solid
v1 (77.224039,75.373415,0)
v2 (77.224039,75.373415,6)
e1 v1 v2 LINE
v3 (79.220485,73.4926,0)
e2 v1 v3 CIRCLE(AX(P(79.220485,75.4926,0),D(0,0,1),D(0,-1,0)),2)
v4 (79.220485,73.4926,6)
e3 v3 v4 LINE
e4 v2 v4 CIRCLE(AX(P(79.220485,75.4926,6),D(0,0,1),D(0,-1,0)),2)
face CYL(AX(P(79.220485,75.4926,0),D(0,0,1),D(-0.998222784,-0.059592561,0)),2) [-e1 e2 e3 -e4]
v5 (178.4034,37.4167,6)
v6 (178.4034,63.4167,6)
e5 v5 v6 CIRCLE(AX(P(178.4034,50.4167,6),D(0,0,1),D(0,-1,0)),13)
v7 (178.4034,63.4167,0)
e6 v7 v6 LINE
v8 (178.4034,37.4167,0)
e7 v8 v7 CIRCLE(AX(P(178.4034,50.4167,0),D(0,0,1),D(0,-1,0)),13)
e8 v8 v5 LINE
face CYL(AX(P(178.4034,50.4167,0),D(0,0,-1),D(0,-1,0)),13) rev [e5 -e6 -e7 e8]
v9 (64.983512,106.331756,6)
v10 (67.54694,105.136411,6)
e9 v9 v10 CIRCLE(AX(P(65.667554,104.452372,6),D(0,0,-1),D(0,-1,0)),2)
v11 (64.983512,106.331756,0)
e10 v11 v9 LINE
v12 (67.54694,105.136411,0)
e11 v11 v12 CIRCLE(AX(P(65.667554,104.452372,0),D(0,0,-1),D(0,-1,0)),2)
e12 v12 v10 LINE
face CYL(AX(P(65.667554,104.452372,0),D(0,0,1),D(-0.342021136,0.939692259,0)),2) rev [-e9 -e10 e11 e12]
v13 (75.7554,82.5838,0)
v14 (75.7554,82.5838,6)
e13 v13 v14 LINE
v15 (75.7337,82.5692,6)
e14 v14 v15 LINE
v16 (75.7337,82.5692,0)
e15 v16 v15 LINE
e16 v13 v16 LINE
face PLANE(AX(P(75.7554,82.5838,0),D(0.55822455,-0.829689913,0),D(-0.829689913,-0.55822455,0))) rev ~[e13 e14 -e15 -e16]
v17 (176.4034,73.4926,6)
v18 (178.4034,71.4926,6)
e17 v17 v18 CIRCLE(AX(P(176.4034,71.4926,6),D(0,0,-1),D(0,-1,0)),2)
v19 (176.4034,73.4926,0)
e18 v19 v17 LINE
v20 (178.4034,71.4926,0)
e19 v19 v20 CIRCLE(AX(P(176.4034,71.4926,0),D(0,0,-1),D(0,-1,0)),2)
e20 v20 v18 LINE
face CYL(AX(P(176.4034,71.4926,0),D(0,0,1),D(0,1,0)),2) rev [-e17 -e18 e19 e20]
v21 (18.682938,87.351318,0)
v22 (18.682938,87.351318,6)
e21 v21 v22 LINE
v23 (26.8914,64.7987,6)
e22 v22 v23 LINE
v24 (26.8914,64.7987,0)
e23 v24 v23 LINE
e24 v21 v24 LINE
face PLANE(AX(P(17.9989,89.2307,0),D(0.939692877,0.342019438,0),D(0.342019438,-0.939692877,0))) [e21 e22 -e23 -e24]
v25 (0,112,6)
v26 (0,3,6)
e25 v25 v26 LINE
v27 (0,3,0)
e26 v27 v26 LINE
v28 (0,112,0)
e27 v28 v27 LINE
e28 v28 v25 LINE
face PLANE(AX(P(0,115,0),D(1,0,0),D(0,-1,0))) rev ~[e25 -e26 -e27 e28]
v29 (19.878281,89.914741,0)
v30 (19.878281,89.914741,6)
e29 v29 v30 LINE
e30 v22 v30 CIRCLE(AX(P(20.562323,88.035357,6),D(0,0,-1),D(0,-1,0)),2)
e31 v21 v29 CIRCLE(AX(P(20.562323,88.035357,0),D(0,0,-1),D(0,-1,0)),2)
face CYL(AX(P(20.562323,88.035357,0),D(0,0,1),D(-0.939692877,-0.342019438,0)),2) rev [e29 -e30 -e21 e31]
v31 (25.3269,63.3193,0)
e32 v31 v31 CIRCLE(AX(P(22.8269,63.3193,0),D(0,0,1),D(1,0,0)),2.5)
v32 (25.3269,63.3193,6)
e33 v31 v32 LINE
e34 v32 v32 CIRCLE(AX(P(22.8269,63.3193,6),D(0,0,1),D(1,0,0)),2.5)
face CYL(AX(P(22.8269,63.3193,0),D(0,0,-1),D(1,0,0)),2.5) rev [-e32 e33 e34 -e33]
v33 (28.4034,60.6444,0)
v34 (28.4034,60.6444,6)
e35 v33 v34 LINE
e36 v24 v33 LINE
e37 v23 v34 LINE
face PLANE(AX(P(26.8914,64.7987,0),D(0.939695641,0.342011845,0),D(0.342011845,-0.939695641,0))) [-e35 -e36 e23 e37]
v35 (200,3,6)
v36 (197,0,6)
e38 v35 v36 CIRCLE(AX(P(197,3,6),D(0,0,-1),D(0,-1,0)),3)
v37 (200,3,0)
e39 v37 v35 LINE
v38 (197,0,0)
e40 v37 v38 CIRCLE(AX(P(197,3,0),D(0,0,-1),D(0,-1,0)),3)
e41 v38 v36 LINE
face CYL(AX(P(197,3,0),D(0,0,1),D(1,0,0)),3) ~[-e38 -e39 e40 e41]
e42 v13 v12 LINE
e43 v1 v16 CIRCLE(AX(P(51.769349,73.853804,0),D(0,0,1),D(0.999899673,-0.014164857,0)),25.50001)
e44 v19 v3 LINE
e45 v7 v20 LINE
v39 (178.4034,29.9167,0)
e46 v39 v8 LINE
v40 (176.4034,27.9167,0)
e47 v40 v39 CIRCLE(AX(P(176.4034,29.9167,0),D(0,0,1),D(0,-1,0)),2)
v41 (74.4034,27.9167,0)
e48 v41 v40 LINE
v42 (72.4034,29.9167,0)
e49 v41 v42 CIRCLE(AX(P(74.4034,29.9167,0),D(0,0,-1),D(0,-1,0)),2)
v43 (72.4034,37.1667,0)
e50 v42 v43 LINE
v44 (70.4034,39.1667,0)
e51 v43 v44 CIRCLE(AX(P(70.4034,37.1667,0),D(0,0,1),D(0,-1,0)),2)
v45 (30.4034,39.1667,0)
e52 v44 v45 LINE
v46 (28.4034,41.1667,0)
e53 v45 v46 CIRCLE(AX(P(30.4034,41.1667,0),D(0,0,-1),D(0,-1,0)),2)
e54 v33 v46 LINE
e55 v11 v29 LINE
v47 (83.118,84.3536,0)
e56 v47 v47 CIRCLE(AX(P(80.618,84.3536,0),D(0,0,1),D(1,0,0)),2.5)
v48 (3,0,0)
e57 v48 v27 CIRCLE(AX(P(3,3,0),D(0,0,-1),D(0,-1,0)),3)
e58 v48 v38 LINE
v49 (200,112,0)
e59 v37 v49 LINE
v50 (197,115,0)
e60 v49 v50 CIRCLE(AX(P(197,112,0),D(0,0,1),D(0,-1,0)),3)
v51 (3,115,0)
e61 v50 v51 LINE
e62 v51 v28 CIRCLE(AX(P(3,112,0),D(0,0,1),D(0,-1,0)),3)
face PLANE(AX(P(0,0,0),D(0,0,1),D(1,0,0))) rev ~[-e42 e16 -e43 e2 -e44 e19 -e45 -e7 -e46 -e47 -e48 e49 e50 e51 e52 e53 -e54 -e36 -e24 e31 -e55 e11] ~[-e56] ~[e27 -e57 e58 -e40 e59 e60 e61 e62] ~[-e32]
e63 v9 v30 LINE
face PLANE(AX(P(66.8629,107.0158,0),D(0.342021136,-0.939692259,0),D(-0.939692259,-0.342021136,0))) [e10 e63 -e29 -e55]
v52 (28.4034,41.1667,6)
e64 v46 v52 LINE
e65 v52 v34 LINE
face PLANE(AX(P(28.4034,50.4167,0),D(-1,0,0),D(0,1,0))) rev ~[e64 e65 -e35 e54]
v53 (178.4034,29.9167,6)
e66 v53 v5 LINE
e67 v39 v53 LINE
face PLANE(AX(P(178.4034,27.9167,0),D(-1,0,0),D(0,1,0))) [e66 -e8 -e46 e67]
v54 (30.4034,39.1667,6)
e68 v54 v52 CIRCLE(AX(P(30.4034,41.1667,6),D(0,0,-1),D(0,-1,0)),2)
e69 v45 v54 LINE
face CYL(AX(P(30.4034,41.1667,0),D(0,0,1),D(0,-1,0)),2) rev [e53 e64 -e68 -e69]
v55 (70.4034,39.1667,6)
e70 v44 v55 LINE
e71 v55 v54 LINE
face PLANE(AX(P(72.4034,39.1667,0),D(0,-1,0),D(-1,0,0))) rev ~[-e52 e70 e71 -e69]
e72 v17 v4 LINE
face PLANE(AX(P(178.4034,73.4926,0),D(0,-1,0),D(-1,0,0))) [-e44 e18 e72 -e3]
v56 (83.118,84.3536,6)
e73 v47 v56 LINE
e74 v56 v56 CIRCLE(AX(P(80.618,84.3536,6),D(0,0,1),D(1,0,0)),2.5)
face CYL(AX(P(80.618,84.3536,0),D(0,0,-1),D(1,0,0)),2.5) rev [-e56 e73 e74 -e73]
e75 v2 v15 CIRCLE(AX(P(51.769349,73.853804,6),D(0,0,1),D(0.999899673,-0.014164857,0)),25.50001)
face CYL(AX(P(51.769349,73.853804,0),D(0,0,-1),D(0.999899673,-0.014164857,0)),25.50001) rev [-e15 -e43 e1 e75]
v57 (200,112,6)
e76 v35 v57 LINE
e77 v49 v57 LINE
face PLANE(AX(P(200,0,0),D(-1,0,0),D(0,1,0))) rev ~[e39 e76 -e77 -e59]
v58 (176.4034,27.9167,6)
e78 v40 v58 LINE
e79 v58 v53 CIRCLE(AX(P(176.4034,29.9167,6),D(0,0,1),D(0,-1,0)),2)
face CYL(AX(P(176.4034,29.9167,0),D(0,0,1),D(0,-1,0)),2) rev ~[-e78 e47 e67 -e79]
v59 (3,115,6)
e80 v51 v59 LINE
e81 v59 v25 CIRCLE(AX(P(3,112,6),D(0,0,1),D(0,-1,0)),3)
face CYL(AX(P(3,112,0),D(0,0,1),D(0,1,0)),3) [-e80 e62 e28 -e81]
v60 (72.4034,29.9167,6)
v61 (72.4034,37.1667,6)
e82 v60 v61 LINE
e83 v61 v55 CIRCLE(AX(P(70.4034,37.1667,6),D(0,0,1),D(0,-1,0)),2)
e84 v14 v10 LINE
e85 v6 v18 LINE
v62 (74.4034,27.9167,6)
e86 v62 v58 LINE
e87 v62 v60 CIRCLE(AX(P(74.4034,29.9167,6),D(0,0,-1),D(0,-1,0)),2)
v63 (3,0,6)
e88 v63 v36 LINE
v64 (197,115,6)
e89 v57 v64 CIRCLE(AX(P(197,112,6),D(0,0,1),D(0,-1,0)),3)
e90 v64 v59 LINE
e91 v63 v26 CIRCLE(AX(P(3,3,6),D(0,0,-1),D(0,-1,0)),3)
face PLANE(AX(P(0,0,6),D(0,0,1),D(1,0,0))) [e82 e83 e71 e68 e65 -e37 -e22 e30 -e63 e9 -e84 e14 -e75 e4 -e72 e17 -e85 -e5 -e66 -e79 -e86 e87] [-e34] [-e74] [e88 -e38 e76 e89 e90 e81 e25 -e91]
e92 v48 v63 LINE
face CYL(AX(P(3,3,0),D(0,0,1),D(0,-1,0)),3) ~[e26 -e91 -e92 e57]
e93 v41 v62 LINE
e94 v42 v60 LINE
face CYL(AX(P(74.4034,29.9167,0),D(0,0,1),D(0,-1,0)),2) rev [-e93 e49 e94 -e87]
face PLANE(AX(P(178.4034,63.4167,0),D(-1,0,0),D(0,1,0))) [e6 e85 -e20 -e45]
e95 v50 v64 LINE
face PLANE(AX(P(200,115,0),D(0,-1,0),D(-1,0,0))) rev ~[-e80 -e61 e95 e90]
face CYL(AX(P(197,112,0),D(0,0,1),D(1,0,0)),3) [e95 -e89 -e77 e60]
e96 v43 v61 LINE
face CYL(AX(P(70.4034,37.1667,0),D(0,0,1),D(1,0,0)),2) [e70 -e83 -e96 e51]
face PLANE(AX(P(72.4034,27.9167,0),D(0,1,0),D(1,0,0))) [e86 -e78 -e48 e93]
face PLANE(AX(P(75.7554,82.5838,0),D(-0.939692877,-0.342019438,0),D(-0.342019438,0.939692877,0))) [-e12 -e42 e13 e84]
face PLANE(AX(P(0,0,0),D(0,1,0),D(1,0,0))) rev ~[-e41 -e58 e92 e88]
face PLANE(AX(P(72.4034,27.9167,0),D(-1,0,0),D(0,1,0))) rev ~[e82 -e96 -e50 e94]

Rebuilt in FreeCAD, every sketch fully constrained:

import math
import FreeCAD as App
import Part
import Sketcher


def edges_at(feature, points):
    """Names of the edges that pass closest to the given points."""
    edges = feature.Shape.Edges
    near = lambda p: min(range(len(edges)), key=lambda i: edges[i].distToShape(Part.Vertex(*p))[0])
    return sorted({f"Edge{near(p) + 1}" for p in points})


def add_polygon(sketch, points):
    """Adds a closed chain of lines whose ends are joined by coincident constraints."""
    first, n = sketch.GeometryCount, len(points)
    for a, b in zip(points, points[1:] + points[:1]):
        sketch.addGeometry(Part.LineSegment(App.Vector(*a, 0), App.Vector(*b, 0)), False)
    for i in range(n):
        sketch.addConstraint(Sketcher.Constraint("Coincident", first + i, 2, first + (i + 1) % n, 1))

doc = App.newDocument("Part")
body = doc.addObject("PartDesign::Body", "Body")

sketch1 = body.newObject("Sketcher::SketchObject", "Sketch")
sketch1.AttachmentSupport = (doc.getObject("XY_Plane"), [""])
sketch1.MapMode = "FlatFace"
add_polygon(sketch1, [(0, 115), (0, 0), (200, 0), (200, 115)])
sketch1.addGeometry(Part.Circle(App.Vector(22.8269, 63.3193, 0), App.Vector(0, 0, 1), 2.5), False)
sketch1.addGeometry(Part.Circle(App.Vector(80.618, 84.3536, 0), App.Vector(0, 0, 1), 2.5), False)
sketch1.addGeometry(Part.LineSegment(App.Vector(178.4034, 27.9167, 0), App.Vector(72.4034, 27.9167, 0)), False)
sketch1.addGeometry(Part.LineSegment(App.Vector(72.4034, 27.9167, 0), App.Vector(72.4034, 39.1667, 0)), False)
sketch1.addGeometry(Part.LineSegment(App.Vector(72.4034, 39.1667, 0), App.Vector(28.4034, 39.1667, 0)), False)
sketch1.addGeometry(Part.LineSegment(App.Vector(28.4034, 39.1667, 0), App.Vector(28.4034, 60.6444, 0)), False)
sketch1.addGeometry(Part.LineSegment(App.Vector(28.4034, 60.6444, 0), App.Vector(26.8914, 64.7987, 0)), False)
sketch1.addGeometry(Part.LineSegment(App.Vector(26.8914, 64.7987, 0), App.Vector(17.9989, 89.2307, 0)), False)
sketch1.addGeometry(Part.LineSegment(App.Vector(17.9989, 89.2307, 0), App.Vector(66.8629, 107.0158, 0)), False)
sketch1.addGeometry(Part.LineSegment(App.Vector(66.8629, 107.0158, 0), App.Vector(75.7554, 82.5838, 0)), False)
sketch1.addGeometry(Part.LineSegment(App.Vector(75.7554, 82.5838, 0), App.Vector(75.7337, 82.5692, 0)), False)
sketch1.addGeometry(Part.ArcOfCircle(Part.Circle(App.Vector(51.76601, 73.85324, 0), App.Vector(0, 0, 1), 25.50334), math.radians(-0.81024), math.radians(19.984028)), False)
sketch1.addGeometry(Part.LineSegment(App.Vector(77.2668, 73.4926, 0), App.Vector(178.4034, 73.4926, 0)), False)
sketch1.addGeometry(Part.LineSegment(App.Vector(178.4034, 73.4926, 0), App.Vector(178.4034, 63.4167, 0)), False)
sketch1.addGeometry(Part.ArcOfCircle(Part.Circle(App.Vector(178.4034, 50.4167, 0), App.Vector(0, 0, 1), 13), math.radians(-90), math.radians(90)), False)
sketch1.addGeometry(Part.LineSegment(App.Vector(178.4034, 37.4167, 0), App.Vector(178.4034, 27.9167, 0)), False)
sketch1.addConstraint(Sketcher.Constraint("Coincident", 6, 2, 7, 1))
sketch1.addConstraint(Sketcher.Constraint("Coincident", 7, 2, 8, 1))
sketch1.addConstraint(Sketcher.Constraint("Coincident", 8, 2, 9, 1))
sketch1.addConstraint(Sketcher.Constraint("Coincident", 9, 2, 10, 1))
sketch1.addConstraint(Sketcher.Constraint("Coincident", 10, 2, 11, 1))
sketch1.addConstraint(Sketcher.Constraint("Coincident", 11, 2, 12, 1))
sketch1.addConstraint(Sketcher.Constraint("Coincident", 12, 2, 13, 1))
sketch1.addConstraint(Sketcher.Constraint("Coincident", 13, 2, 14, 1))
sketch1.addConstraint(Sketcher.Constraint("Coincident", 14, 2, 15, 2))
sketch1.addConstraint(Sketcher.Constraint("Coincident", 15, 1, 16, 1))
sketch1.addConstraint(Sketcher.Constraint("Coincident", 16, 2, 17, 1))
sketch1.addConstraint(Sketcher.Constraint("Coincident", 17, 2, 18, 2))
sketch1.addConstraint(Sketcher.Constraint("Coincident", 18, 1, 19, 1))
sketch1.addConstraint(Sketcher.Constraint("Coincident", 19, 2, 6, 1))
sketch1.addConstraint(Sketcher.Constraint("Vertical", 0))
sketch1.addConstraint(Sketcher.Constraint("Horizontal", 1))
sketch1.addConstraint(Sketcher.Constraint("Vertical", 2))
sketch1.addConstraint(Sketcher.Constraint("Horizontal", 3))
sketch1.addConstraint(Sketcher.Constraint("Horizontal", 6))
sketch1.addConstraint(Sketcher.Constraint("Vertical", 7))
sketch1.addConstraint(Sketcher.Constraint("Horizontal", 8))
sketch1.addConstraint(Sketcher.Constraint("Vertical", 9))
sketch1.addConstraint(Sketcher.Constraint("Horizontal", 16))
sketch1.addConstraint(Sketcher.Constraint("Vertical", 17))
sketch1.addConstraint(Sketcher.Constraint("Vertical", 19))
sketch1.addConstraint(Sketcher.Constraint("Coincident", 0, 2, -1, 1))
sketch1.addConstraint(Sketcher.Constraint("Diameter", 4, 5.0))
sketch1.addConstraint(Sketcher.Constraint("Diameter", 5, 5.0))
sketch1.addConstraint(Sketcher.Constraint("Radius", 18, 13.0))
sketch1.addConstraint(Sketcher.Constraint("DistanceX", 1, 1, 1, 2, 200.0))
sketch1.addConstraint(Sketcher.Constraint("DistanceX", 6, 2, 6, 1, 106.0))
sketch1.addConstraint(Sketcher.Constraint("DistanceX", 8, 2, 8, 1, 44.0))
sketch1.addConstraint(Sketcher.Constraint("DistanceY", 0, 2, 0, 1, 115.0))
sketch1.addConstraint(Sketcher.Constraint("Distance", 11, 26.0))
sketch1.addConstraint(Sketcher.Constraint("Distance", 12, 52.0))
sketch1.addConstraint(Sketcher.Constraint("Distance", 13, 26.0))
sketch1.addConstraint(Sketcher.Constraint("DistanceX", 6, 2, 18, 3, 106.0))
sketch1.addConstraint(Sketcher.Constraint("DistanceY", 7, 1, 7, 2, 11.25))
sketch1.addConstraint(Sketcher.Constraint("DistanceY", 19, 2, 19, 1, 9.5))
sketch1.addConstraint(Sketcher.Constraint("Radius", 15, 25.5033))
sketch1.addConstraint(Sketcher.Constraint("DistanceY", 17, 2, 17, 1, 10.076))
sketch1.addConstraint(Sketcher.Constraint("Distance", 10, 4.421))
sketch1.addConstraint(Sketcher.Constraint("DistanceX", 16, 1, 16, 2, 101.1366))
sketch1.addConstraint(Sketcher.Constraint("DistanceY", 9, 1, 9, 2, 21.4777))
sketch1.addConstraint(Sketcher.Constraint("DistanceX", -1, 1, 4, 3, 22.827))
sketch1.addConstraint(Sketcher.Constraint("DistanceX", -1, 1, 5, 3, 80.618))
sketch1.addConstraint(Sketcher.Constraint("DistanceX", -1, 1, 15, 3, 51.766))
sketch1.addConstraint(Sketcher.Constraint("DistanceX", -1, 1, 11, 2, 17.999))
sketch1.addConstraint(Sketcher.Constraint("DistanceX", -1, 1, 12, 2, 66.863))
sketch1.addConstraint(Sketcher.Constraint("DistanceY", 4, 3, 15, 3, 10.534))
sketch1.addConstraint(Sketcher.Constraint("DistanceY", 18, 3, 5, 3, 33.937))
sketch1.addConstraint(Sketcher.Constraint("DistanceY", 9, 2, 4, 3, 2.675))
sketch1.addConstraint(Sketcher.Constraint("DistanceX", 10, 2, 9, 2, 1.512))
sketch1.addConstraint(Sketcher.Constraint("DistanceY", 10, 2, 11, 2, 24.432))
sketch1.addConstraint(Sketcher.Constraint("DistanceY", 13, 2, 12, 2, 24.432))
sketch1.addConstraint(Sketcher.Constraint("DistanceY", 15, 3, 14, 2, 8.716))
sketch1.addConstraint(Sketcher.Constraint("DistanceY", -1, 1, 4, 3, 63.3193))
pad1 = body.newObject("PartDesign::Pad", "Pad")
pad1.Profile = sketch1
pad1.Length = 6
doc.recompute()

fillet = body.newObject("PartDesign::Fillet", "Fillet")
fillet.Base = (pad1, edges_at(pad1, [(200, 0, 3)]))
fillet.Radius = 3
doc.recompute()

fillet2 = body.newObject("PartDesign::Fillet", "Fillet001")
fillet2.Base = (fillet, edges_at(fillet, [(0, 0, 3), (0, 115, 3), (200, 115, 3)]))
fillet2.Radius = 3
doc.recompute()

fillet3 = body.newObject("PartDesign::Fillet", "Fillet002")
fillet3.Base = (fillet2, edges_at(fillet2, [
    (17.999, 89.231, 3),
    (66.863, 107.016, 3),
    (77.267, 73.493, 3),
    (28.403, 39.167, 3),
    (72.403, 27.917, 3),
    (178.403, 27.917, 3),
    (178.403, 73.493, 3),
]))
fillet3.Radius = 2
doc.recompute()

fillet4 = body.newObject("PartDesign::Fillet", "Fillet003")
fillet4.Base = (fillet3, edges_at(fillet3, [(72.403, 39.167, 3)]))
fillet4.Radius = 2

doc.recompute()
